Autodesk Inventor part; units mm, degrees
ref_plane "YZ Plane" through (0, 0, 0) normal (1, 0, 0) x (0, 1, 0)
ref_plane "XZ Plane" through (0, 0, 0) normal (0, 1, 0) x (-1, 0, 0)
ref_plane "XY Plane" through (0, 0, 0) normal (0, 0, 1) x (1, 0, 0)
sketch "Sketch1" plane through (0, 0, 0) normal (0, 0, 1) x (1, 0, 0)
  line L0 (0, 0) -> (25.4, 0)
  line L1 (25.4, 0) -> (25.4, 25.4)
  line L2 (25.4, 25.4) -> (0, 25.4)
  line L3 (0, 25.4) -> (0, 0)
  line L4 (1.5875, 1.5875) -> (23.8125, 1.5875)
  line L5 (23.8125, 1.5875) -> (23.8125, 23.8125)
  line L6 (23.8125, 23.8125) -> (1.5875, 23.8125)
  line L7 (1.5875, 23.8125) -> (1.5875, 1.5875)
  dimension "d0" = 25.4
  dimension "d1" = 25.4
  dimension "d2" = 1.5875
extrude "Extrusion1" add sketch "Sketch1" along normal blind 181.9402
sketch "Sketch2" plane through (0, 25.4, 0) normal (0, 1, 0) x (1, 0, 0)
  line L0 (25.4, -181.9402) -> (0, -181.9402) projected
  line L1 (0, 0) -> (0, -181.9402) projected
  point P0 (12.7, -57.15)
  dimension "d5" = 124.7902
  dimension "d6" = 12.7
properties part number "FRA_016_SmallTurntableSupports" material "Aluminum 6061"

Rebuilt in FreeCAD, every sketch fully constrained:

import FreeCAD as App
import Part
import Sketcher
Q = App.Units.Quantity

doc = App.newDocument("Part")
body = doc.addObject("PartDesign::Body", "Body")

# Sketch on XY plane
sketch1 = body.newObject("Sketcher::SketchObject", "Sketch")
sketch1.AttachmentSupport = (doc.getObject("XY_Plane"), [""])
sketch1.MapMode = "FlatFace"
sketch1.addGeometry(Part.LineSegment(App.Vector(0, 25, 0), App.Vector(0, 0, 0)), False)
sketch1.addGeometry(Part.LineSegment(App.Vector(0, 0, 0), App.Vector(25, 0, 0)), False)
sketch1.addGeometry(Part.LineSegment(App.Vector(25, 0, 0), App.Vector(25, 25, 0)), False)
sketch1.addGeometry(Part.LineSegment(App.Vector(25, 25, 0), App.Vector(0, 25, 0)), False)
sketch1.addGeometry(Part.LineSegment(App.Vector(24, 2, 0), App.Vector(2, 2, 0)), False)
sketch1.addGeometry(Part.LineSegment(App.Vector(2, 2, 0), App.Vector(2, 24, 0)), False)
sketch1.addGeometry(Part.LineSegment(App.Vector(2, 24, 0), App.Vector(24, 24, 0)), False)
sketch1.addGeometry(Part.LineSegment(App.Vector(24, 24, 0), App.Vector(24, 2, 0)), False)
sketch1.addConstraint(Sketcher.Constraint("Coincident", 0, 2, 1, 1))
sketch1.addConstraint(Sketcher.Constraint("Coincident", 1, 2, 2, 1))
sketch1.addConstraint(Sketcher.Constraint("Coincident", 2, 2, 3, 1))
sketch1.addConstraint(Sketcher.Constraint("Coincident", 3, 2, 0, 1))
sketch1.addConstraint(Sketcher.Constraint("Coincident", 4, 2, 5, 1))
sketch1.addConstraint(Sketcher.Constraint("Coincident", 5, 2, 6, 1))
sketch1.addConstraint(Sketcher.Constraint("Coincident", 6, 2, 7, 1))
sketch1.addConstraint(Sketcher.Constraint("Coincident", 7, 2, 4, 1))
sketch1.addConstraint(Sketcher.Constraint("Vertical", 0))
sketch1.addConstraint(Sketcher.Constraint("Horizontal", 1))
sketch1.addConstraint(Sketcher.Constraint("Vertical", 2))
sketch1.addConstraint(Sketcher.Constraint("Horizontal", 3))
sketch1.addConstraint(Sketcher.Constraint("Horizontal", 4))
sketch1.addConstraint(Sketcher.Constraint("Vertical", 5))
sketch1.addConstraint(Sketcher.Constraint("Horizontal", 6))
sketch1.addConstraint(Sketcher.Constraint("Vertical", 7))
sketch1.addConstraint(Sketcher.Constraint("Coincident", 0, 2, -1, 1))
sketch1.addConstraint(Sketcher.Constraint("Equal", 3, 0))
sketch1.addConstraint(Sketcher.Constraint("Equal", 6, 5))
sketch1.addConstraint(Sketcher.Constraint("DistanceX", 1, 1, 1, 2, Q("1 in")))
sketch1.addConstraint(Sketcher.Constraint("DistanceX", -1, 1, 4, 2, Q("0.0625 in")))
sketch1.addConstraint(Sketcher.Constraint("DistanceY", -1, 1, 4, 2, Q("0.0625 in")))
sketch1.addConstraint(Sketcher.Constraint("DistanceY", 5, 2, 3, 2, Q("0.0625 in")))
pad1 = body.newObject("PartDesign::Pad", "Pad")
pad1.Profile = sketch1
pad1.Length = Q("7.163 in")

doc.recompute()
